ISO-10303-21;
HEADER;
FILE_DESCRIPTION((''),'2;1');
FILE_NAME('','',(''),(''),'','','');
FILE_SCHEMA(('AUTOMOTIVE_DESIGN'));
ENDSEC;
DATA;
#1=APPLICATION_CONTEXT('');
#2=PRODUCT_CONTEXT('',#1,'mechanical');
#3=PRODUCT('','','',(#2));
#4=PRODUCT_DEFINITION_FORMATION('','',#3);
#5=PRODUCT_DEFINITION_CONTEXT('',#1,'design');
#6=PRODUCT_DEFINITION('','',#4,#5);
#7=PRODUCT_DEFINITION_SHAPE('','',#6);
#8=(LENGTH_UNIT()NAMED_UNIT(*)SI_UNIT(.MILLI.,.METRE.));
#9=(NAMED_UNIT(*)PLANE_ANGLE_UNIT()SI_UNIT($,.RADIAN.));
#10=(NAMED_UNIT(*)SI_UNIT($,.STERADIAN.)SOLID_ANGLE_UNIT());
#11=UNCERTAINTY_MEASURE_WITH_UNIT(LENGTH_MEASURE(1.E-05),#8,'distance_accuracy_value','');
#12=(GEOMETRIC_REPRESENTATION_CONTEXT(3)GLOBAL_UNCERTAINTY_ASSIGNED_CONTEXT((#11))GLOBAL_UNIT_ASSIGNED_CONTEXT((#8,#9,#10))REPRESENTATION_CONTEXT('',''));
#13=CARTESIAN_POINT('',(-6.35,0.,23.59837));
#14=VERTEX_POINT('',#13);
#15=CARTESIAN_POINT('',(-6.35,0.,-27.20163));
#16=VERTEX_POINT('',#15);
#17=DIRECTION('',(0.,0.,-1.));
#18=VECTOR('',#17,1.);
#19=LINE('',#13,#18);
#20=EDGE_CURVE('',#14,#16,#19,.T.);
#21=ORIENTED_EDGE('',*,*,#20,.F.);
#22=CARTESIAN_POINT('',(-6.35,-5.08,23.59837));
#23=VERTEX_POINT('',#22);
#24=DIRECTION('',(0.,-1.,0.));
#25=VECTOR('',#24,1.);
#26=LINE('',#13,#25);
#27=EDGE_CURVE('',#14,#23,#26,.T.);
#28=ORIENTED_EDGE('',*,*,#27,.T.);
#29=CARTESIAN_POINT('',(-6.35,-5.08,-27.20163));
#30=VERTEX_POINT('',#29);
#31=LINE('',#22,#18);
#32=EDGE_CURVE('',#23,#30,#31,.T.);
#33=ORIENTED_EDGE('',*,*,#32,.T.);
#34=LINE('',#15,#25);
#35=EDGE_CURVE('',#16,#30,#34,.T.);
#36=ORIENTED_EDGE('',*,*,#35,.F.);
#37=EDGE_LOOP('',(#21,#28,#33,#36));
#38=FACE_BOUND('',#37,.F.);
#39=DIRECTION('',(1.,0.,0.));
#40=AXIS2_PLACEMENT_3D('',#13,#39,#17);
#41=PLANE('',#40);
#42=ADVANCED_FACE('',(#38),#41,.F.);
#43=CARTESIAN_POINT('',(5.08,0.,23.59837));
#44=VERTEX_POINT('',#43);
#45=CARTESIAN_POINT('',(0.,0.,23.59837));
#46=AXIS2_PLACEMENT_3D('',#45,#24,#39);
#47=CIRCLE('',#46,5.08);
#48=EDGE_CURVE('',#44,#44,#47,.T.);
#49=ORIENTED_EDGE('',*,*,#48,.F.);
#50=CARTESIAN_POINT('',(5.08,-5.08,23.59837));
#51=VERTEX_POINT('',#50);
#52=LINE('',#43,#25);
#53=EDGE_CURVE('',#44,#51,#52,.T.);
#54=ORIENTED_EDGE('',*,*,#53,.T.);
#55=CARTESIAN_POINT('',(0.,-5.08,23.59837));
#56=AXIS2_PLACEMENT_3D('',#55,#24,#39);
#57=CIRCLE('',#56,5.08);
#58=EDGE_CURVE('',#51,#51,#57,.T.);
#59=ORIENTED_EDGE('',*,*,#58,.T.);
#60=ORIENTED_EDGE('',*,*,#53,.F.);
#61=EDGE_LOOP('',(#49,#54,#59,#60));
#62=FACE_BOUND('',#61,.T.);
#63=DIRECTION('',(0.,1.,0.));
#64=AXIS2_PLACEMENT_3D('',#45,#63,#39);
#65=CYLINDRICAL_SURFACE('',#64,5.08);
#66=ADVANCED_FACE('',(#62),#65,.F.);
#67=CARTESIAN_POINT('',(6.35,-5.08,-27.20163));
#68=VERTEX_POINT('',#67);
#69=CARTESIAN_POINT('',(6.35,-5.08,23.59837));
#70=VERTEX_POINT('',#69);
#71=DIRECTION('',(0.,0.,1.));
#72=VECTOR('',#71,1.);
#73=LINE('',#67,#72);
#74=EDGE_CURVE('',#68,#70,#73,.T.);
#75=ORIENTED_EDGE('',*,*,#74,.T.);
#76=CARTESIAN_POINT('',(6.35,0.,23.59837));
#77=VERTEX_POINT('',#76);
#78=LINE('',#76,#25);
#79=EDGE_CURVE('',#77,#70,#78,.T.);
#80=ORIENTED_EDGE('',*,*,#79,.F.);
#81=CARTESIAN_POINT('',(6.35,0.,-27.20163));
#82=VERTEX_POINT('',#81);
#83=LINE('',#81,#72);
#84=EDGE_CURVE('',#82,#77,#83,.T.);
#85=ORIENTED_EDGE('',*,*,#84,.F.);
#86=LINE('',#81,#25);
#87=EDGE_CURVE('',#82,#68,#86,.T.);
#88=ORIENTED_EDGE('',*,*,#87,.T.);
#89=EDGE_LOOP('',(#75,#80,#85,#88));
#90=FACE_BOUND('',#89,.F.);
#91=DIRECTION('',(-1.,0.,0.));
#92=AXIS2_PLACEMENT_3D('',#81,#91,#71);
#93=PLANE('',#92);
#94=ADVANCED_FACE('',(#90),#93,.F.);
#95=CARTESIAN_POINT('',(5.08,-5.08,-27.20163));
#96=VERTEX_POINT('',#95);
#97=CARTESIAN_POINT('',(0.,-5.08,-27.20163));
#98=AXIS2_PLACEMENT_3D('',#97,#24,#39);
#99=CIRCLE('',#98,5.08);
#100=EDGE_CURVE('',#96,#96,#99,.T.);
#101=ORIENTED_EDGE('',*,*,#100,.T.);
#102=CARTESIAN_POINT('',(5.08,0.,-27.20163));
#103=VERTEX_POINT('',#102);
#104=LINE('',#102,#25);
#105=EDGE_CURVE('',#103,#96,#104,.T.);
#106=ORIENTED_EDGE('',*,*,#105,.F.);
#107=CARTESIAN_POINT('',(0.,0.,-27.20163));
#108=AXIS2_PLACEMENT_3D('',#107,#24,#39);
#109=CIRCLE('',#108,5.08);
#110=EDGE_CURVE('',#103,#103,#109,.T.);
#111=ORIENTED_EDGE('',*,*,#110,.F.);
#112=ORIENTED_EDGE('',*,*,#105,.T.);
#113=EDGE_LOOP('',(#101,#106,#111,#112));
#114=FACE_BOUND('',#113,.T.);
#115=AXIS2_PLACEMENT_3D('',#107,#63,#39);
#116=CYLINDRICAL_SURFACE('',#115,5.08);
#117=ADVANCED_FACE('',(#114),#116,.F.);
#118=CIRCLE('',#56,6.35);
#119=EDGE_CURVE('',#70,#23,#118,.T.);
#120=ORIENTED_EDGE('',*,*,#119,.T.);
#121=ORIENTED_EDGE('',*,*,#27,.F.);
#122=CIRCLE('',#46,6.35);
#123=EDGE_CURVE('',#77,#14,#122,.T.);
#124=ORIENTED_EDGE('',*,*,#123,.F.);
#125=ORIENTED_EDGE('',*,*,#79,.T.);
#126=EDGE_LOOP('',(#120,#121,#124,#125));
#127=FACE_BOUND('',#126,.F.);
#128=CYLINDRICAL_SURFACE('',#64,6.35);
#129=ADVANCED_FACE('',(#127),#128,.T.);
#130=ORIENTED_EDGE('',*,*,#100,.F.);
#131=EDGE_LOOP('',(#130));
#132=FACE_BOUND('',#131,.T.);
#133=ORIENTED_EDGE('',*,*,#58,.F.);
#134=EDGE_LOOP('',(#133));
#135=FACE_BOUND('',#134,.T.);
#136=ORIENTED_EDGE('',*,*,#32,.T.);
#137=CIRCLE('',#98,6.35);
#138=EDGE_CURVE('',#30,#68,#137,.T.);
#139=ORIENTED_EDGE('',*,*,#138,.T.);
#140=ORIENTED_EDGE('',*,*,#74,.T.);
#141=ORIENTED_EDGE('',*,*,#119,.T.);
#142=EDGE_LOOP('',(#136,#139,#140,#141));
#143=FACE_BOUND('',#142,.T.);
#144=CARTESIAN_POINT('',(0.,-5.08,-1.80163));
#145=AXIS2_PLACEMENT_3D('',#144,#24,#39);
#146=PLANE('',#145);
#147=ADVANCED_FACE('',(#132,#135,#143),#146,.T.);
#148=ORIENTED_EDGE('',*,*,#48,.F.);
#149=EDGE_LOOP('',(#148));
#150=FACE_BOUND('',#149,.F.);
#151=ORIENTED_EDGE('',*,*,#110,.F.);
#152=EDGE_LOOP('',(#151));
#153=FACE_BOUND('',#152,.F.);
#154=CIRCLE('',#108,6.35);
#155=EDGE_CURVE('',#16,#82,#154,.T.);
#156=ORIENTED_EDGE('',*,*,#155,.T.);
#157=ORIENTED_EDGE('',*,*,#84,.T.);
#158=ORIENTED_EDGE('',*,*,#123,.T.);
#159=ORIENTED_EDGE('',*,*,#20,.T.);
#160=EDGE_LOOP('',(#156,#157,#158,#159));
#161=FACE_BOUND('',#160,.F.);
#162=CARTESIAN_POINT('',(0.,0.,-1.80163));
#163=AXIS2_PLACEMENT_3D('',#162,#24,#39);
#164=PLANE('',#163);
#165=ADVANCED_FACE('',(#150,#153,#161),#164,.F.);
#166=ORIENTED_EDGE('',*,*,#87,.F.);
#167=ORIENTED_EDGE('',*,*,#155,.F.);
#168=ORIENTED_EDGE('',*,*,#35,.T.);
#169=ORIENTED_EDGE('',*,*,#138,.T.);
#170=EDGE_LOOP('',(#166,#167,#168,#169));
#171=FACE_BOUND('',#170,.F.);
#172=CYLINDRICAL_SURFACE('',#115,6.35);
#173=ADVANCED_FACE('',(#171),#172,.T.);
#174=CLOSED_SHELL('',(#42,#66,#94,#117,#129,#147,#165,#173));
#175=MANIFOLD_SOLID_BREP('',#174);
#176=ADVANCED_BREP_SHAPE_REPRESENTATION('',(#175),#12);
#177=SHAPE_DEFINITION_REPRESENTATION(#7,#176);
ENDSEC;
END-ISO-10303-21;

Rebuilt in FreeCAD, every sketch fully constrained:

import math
import FreeCAD as App
import Part
import Sketcher
Q = App.Units.Quantity

doc = App.newDocument("Part")
body = doc.addObject("PartDesign::Body", "Body")

# Sketch on XZ plane
sketch1 = body.newObject("Sketcher::SketchObject", "Sketch")
sketch1.AttachmentSupport = (doc.getObject("XZ_Plane"), [""])
sketch1.MapMode = "FlatFace"
sketch1.addGeometry(Part.LineSegment(App.Vector(6.35, -27.20163, 0), App.Vector(6.35, 23.59837, 0)), False)
sketch1.addGeometry(Part.ArcOfCircle(Part.Circle(App.Vector(0, 23.59837, 0), App.Vector(0, 0, 1), 6.35), math.radians(0), math.radians(180)), False)
sketch1.addGeometry(Part.LineSegment(App.Vector(-6.35, 23.59837, 0), App.Vector(-6.35, -27.20163, 0)), False)
sketch1.addGeometry(Part.ArcOfCircle(Part.Circle(App.Vector(0, -27.20163, 0), App.Vector(0, 0, 1), 6.35), math.radians(180), math.radians(360)), False)
sketch1.addGeometry(Part.Circle(App.Vector(0, -27.20163, 0), App.Vector(0, 0, 1), 5.08), False)
sketch1.addGeometry(Part.Circle(App.Vector(0, 23.59837, 0), App.Vector(0, 0, 1), 5.08), False)
sketch1.addConstraint(Sketcher.Constraint("Tangent", 0, 2, 1, 1))
sketch1.addConstraint(Sketcher.Constraint("Tangent", 1, 2, 2, 1))
sketch1.addConstraint(Sketcher.Constraint("Tangent", 2, 2, 3, 1))
sketch1.addConstraint(Sketcher.Constraint("Tangent", 3, 2, 0, 1))
sketch1.addConstraint(Sketcher.Constraint("Vertical", 0))
sketch1.addConstraint(Sketcher.Constraint("Vertical", 2))
sketch1.addConstraint(Sketcher.Constraint("Coincident", 4, 3, 3, 3))
sketch1.addConstraint(Sketcher.Constraint("Coincident", 5, 3, 1, 3))
sketch1.addConstraint(Sketcher.Constraint("Equal", 4, 5))
sketch1.addConstraint(Sketcher.Constraint("PointOnObject", 1, 3, -2))
sketch1.addConstraint(Sketcher.Constraint("Diameter", 4, Q("0.4 in")))
sketch1.addConstraint(Sketcher.Constraint("DistanceY", 0, 1, 0, 2, Q("2 in")))
sketch1.addConstraint(Sketcher.Constraint("Radius", 1, Q("0.25 in")))
sketch1.addConstraint(Sketcher.Constraint("DistanceY", -1, 1, 1, 3, Q("23.59837 mm")))
pad1 = body.newObject("PartDesign::Pad", "Pad")
pad1.Profile = sketch1
pad1.Length = Q("0.2 in")

doc.recompute()
